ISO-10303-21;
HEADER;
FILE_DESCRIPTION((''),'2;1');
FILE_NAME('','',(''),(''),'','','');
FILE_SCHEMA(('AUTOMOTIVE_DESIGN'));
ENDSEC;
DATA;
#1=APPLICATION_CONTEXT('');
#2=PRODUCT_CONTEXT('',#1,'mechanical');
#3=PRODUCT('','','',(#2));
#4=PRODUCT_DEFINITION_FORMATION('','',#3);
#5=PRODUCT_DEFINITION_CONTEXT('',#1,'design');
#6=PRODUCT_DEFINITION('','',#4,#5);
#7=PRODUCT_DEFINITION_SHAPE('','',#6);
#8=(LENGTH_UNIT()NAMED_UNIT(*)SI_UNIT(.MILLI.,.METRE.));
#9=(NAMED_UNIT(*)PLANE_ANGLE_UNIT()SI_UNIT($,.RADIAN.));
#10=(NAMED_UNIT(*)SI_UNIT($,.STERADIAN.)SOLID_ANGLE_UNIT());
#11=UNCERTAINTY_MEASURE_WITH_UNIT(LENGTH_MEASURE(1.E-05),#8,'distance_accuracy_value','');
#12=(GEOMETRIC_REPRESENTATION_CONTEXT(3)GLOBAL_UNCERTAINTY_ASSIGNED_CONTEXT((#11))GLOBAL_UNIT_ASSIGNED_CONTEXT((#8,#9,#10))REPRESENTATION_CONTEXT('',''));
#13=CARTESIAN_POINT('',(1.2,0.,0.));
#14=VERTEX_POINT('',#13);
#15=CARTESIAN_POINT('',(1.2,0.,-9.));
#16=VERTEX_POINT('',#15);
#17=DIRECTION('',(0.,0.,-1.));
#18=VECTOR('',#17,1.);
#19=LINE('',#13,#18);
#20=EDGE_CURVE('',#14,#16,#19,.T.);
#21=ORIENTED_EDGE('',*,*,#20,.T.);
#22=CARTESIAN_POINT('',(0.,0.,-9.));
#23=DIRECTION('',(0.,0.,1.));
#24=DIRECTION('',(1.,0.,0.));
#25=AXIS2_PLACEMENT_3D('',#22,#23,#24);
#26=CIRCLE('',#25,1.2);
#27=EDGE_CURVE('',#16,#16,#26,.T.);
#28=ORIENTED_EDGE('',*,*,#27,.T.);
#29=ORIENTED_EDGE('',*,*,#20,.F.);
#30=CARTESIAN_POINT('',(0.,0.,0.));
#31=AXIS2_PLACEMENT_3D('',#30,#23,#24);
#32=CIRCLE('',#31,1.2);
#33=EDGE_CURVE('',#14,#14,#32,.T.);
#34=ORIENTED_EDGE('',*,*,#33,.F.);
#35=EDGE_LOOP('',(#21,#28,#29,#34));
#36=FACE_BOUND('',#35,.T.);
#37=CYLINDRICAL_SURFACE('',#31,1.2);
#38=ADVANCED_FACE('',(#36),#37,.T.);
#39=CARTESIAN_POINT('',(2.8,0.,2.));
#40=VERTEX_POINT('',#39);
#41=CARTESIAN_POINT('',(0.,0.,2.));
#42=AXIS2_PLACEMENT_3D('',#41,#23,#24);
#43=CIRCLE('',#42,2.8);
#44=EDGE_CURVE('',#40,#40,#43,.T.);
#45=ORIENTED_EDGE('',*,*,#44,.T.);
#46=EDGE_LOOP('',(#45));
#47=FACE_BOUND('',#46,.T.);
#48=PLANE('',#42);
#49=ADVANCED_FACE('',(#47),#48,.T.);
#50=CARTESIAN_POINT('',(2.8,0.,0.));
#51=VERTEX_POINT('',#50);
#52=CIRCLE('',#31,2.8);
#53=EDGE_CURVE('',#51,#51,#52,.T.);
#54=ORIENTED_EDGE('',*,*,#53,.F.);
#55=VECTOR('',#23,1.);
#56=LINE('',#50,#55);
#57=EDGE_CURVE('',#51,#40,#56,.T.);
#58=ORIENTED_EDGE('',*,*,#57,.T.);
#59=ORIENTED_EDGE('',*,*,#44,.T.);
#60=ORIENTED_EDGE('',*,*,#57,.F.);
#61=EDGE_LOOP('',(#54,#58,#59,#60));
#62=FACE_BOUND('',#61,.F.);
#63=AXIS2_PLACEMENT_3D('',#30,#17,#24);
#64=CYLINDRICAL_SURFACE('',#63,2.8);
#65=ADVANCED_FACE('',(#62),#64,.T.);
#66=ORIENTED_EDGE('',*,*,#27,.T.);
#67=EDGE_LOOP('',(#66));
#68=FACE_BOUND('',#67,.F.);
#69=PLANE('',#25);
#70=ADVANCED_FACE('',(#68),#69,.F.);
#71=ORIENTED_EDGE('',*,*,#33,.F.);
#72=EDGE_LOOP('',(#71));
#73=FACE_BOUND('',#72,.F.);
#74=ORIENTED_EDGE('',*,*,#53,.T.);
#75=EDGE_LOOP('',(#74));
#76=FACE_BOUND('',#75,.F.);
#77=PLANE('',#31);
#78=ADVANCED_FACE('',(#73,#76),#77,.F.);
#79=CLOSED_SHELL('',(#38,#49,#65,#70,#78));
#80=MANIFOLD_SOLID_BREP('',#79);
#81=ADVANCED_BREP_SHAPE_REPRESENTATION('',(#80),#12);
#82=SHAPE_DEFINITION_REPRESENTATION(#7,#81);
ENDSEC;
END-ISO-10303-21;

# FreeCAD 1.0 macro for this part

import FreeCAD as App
import Part
import Sketcher

doc = App.newDocument("Part")
body = doc.addObject("PartDesign::Body", "Body")

# Sketch on XY plane
sketch1 = body.newObject("Sketcher::SketchObject", "Sketch")
sketch1.AttachmentSupport = (doc.getObject("XY_Plane"), [""])
sketch1.MapMode = "FlatFace"
sketch1.addGeometry(Part.Circle(App.Vector(0, 0, 0), App.Vector(0, 0, 1), 2.8), False)
sketch1.addConstraint(Sketcher.Constraint("Coincident", 0, 3, -1, 1))
sketch1.addConstraint(Sketcher.Constraint("Diameter", 0, 5.6))
pad1 = body.newObject("PartDesign::Pad", "Pad")
pad1.Profile = sketch1
pad1.Length = 2

# Sketch on XY plane
sketch2 = body.newObject("Sketcher::SketchObject", "Sketch001")
sketch2.AttachmentSupport = (doc.getObject("XY_Plane"), [""])
sketch2.MapMode = "FlatFace"
sketch2.addGeometry(Part.Circle(App.Vector(0, 0, 0), App.Vector(0, 0, 1), 1.2), False)
sketch2.addConstraint(Sketcher.Constraint("Coincident", 0, 3, -1, 1))
sketch2.addConstraint(Sketcher.Constraint("Diameter", 0, 2.4))
pad2 = body.newObject("PartDesign::Pad", "Pad001")
pad2.Profile = sketch2
pad2.Length = 9
pad2.Reversed = True

doc.recompute()
